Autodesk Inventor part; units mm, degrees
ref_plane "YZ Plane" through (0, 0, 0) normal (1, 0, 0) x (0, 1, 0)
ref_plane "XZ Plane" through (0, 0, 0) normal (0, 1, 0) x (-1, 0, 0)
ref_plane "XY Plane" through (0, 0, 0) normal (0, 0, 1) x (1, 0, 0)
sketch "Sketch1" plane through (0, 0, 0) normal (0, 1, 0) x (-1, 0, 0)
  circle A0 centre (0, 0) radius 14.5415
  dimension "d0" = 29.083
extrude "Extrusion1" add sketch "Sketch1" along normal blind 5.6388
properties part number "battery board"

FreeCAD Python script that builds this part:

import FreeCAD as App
import Part
import Sketcher
from FreeCAD import Vector
Q = App.Units.Quantity

doc = App.newDocument("Part")
body = doc.addObject("PartDesign::Body", "Body")

# Sketch on XZ plane
sketch1 = body.newObject("Sketcher::SketchObject", "Sketch")
sketch1.AttachmentSupport = (doc.getObject("XZ_Plane"), [""])
sketch1.MapMode = "FlatFace"
sketch1.addGeometry(Part.Circle(Vector(0, 0, 0), Vector(0, 0, 1), 14.5415), False)
sketch1.addConstraint([
    Sketcher.Constraint("Coincident", 0, 3, -1, 1),
    Sketcher.Constraint("Diameter", 0, Q("1.145 in")),
])
pad1 = body.newObject("PartDesign::Pad", "Pad")
pad1.Profile = sketch1
pad1.Length = Q("0.222 in")
pad1.Reversed = True

doc.recompute()
